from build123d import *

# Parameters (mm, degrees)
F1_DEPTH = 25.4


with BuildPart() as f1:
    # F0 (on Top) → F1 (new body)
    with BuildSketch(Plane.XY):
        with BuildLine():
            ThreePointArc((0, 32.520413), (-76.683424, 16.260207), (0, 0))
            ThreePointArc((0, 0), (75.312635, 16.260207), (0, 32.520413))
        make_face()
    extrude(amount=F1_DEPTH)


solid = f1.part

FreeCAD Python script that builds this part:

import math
import FreeCAD as App
import Part
import Sketcher
from FreeCAD import Vector
Q = App.Units.Quantity

doc = App.newDocument("Part")
body = doc.addObject("PartDesign::Body", "Body")

# Sketch on XY plane
sketch1 = body.newObject("Sketcher::SketchObject", "Sketch")
sketch1.AttachmentSupport = (doc.getObject("XY_Plane"), [""])
sketch1.MapMode = "FlatFace"
sketch1.addGeometry(Part.ArcOfCircle(Part.Circle(Vector(-37, 16, 0), Vector(0, 0, 1), 40), math.radians(24), math.radians(336)), False)
sketch1.addGeometry(Part.ArcOfCircle(Part.Circle(Vector(36, 16, 0), Vector(0, 0, 1), 39), math.radians(-156), math.radians(156)), False)
sketch1.addConstraint(Sketcher.Constraint("Coincident", 0, 1, 1, 2))
sketch1.addConstraint(Sketcher.Constraint("Coincident", 1, 1, 0, 2))
sketch1.addConstraint(Sketcher.Constraint("Coincident", 1, 1, -1, 1))
sketch1.addConstraint(Sketcher.Constraint("PointOnObject", 0, 1, -2))
sketch1.addConstraint(Sketcher.Constraint("Radius", 1, Q("39.411629 mm")))
sketch1.addConstraint(Sketcher.Constraint("Radius", 0, Q("40.065646 mm")))
sketch1.addConstraint(Sketcher.Constraint("DistanceX", 0, 3, -1, 1, Q("36.617778 mm")))
pad1 = body.newObject("PartDesign::Pad", "Pad")
pad1.Profile = sketch1
pad1.Length = Q("1 in")

doc.recompute()
